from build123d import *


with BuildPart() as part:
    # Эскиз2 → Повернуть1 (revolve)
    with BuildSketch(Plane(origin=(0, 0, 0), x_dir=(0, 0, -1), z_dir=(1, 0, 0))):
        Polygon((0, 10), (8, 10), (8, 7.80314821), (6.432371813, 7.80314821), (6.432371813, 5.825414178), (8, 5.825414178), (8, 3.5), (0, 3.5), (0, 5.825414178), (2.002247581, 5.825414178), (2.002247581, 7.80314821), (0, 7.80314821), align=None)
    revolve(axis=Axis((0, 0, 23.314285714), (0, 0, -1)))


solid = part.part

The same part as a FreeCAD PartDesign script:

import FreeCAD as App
import Part
import Sketcher

doc = App.newDocument("Part")
body = doc.addObject("PartDesign::Body", "Body")

# Sketch on YZ plane
sketch1 = body.newObject("Sketcher::SketchObject", "Sketch")
sketch1.AttachmentSupport = (doc.getObject("YZ_Plane"), [""])
sketch1.MapMode = "FlatFace"
sketch1.addGeometry([
    Part.LineSegment(App.Vector(10, -8, 0), App.Vector(10, 0, 0)),  # 0
    Part.LineSegment(App.Vector(10, 0, 0), App.Vector(7.803148, 0, 0)),  # 1
    Part.LineSegment(App.Vector(7.803148, 0, 0), App.Vector(7.803148, -2.002248, 0)),  # 2
    Part.LineSegment(App.Vector(7.803148, -2.002248, 0), App.Vector(5.825414, -2.002248, 0)),  # 3
    Part.LineSegment(App.Vector(5.825414, -2.002248, 0), App.Vector(5.825414, 0, 0)),  # 4
    Part.LineSegment(App.Vector(5.825414, 0, 0), App.Vector(3.5, 0, 0)),  # 5
    Part.LineSegment(App.Vector(3.5, 0, 0), App.Vector(3.5, -8, 0)),  # 6
    Part.LineSegment(App.Vector(3.5, -8, 0), App.Vector(5.825414, -8, 0)),  # 7
    Part.LineSegment(App.Vector(5.825414, -8, 0), App.Vector(5.825414, -6.432372, 0)),  # 8
    Part.LineSegment(App.Vector(5.825414, -6.432372, 0), App.Vector(7.803148, -6.432372, 0)),  # 9
    Part.LineSegment(App.Vector(7.803148, -6.432372, 0), App.Vector(7.803148, -8, 0)),  # 10
    Part.LineSegment(App.Vector(7.803148, -8, 0), App.Vector(10, -8, 0)),  # 11
], False)
sketch1.addConstraint([
    Sketcher.Constraint("Coincident", 0, 2, 1, 1),
    Sketcher.Constraint("Coincident", 1, 2, 2, 1),
    Sketcher.Constraint("Coincident", 2, 2, 3, 1),
    Sketcher.Constraint("Coincident", 3, 2, 4, 1),
    Sketcher.Constraint("Coincident", 4, 2, 5, 1),
    Sketcher.Constraint("Coincident", 5, 2, 6, 1),
    Sketcher.Constraint("Coincident", 6, 2, 7, 1),
    Sketcher.Constraint("Coincident", 7, 2, 8, 1),
    Sketcher.Constraint("Coincident", 8, 2, 9, 1),
    Sketcher.Constraint("Coincident", 9, 2, 10, 1),
    Sketcher.Constraint("Coincident", 10, 2, 11, 1),
    Sketcher.Constraint("Coincident", 11, 2, 0, 1),
    Sketcher.Constraint("Vertical", 0),
    Sketcher.Constraint("Horizontal", 1),
    Sketcher.Constraint("Vertical", 2),
    Sketcher.Constraint("Horizontal", 3),
    Sketcher.Constraint("Vertical", 4),
    Sketcher.Constraint("Horizontal", 5),
    Sketcher.Constraint("Vertical", 6),
    Sketcher.Constraint("Horizontal", 7),
    Sketcher.Constraint("Vertical", 8),
    Sketcher.Constraint("Horizontal", 9),
    Sketcher.Constraint("Vertical", 10),
    Sketcher.Constraint("Horizontal", 11),
    Sketcher.Constraint("PointOnObject", 0, 2, -1),
    Sketcher.Constraint("PointOnObject", 4, 2, -1),
    Sketcher.Constraint("Horizontal", 7, 2, 10, 2),
    Sketcher.Constraint("Vertical", 4, 2, 7, 2),
    Sketcher.Constraint("Vertical", 2, 2, 9, 2),
    Sketcher.Constraint("DistanceY", 0, 1, 0, 2, 8.0),
    Sketcher.Constraint("DistanceX", -1, 1, 0, 2, 10.0),
    Sketcher.Constraint("DistanceX", -1, 1, 5, 2, 3.5),
    Sketcher.Constraint("DistanceX", 1, 2, 1, 1, 2.196852),
    Sketcher.Constraint("DistanceY", 8, 1, 8, 2, 1.567628),
    Sketcher.Constraint("DistanceX", 3, 2, 3, 1, 1.977734),
    Sketcher.Constraint("DistanceY", 2, 2, 2, 1, 2.002248),
])
revolution = body.newObject("PartDesign::Revolution", "Revolution")
revolution.Profile = sketch1
revolution.ReferenceAxis = (sketch1, ["V_Axis"])
revolution.Angle = 360

doc.recompute()
